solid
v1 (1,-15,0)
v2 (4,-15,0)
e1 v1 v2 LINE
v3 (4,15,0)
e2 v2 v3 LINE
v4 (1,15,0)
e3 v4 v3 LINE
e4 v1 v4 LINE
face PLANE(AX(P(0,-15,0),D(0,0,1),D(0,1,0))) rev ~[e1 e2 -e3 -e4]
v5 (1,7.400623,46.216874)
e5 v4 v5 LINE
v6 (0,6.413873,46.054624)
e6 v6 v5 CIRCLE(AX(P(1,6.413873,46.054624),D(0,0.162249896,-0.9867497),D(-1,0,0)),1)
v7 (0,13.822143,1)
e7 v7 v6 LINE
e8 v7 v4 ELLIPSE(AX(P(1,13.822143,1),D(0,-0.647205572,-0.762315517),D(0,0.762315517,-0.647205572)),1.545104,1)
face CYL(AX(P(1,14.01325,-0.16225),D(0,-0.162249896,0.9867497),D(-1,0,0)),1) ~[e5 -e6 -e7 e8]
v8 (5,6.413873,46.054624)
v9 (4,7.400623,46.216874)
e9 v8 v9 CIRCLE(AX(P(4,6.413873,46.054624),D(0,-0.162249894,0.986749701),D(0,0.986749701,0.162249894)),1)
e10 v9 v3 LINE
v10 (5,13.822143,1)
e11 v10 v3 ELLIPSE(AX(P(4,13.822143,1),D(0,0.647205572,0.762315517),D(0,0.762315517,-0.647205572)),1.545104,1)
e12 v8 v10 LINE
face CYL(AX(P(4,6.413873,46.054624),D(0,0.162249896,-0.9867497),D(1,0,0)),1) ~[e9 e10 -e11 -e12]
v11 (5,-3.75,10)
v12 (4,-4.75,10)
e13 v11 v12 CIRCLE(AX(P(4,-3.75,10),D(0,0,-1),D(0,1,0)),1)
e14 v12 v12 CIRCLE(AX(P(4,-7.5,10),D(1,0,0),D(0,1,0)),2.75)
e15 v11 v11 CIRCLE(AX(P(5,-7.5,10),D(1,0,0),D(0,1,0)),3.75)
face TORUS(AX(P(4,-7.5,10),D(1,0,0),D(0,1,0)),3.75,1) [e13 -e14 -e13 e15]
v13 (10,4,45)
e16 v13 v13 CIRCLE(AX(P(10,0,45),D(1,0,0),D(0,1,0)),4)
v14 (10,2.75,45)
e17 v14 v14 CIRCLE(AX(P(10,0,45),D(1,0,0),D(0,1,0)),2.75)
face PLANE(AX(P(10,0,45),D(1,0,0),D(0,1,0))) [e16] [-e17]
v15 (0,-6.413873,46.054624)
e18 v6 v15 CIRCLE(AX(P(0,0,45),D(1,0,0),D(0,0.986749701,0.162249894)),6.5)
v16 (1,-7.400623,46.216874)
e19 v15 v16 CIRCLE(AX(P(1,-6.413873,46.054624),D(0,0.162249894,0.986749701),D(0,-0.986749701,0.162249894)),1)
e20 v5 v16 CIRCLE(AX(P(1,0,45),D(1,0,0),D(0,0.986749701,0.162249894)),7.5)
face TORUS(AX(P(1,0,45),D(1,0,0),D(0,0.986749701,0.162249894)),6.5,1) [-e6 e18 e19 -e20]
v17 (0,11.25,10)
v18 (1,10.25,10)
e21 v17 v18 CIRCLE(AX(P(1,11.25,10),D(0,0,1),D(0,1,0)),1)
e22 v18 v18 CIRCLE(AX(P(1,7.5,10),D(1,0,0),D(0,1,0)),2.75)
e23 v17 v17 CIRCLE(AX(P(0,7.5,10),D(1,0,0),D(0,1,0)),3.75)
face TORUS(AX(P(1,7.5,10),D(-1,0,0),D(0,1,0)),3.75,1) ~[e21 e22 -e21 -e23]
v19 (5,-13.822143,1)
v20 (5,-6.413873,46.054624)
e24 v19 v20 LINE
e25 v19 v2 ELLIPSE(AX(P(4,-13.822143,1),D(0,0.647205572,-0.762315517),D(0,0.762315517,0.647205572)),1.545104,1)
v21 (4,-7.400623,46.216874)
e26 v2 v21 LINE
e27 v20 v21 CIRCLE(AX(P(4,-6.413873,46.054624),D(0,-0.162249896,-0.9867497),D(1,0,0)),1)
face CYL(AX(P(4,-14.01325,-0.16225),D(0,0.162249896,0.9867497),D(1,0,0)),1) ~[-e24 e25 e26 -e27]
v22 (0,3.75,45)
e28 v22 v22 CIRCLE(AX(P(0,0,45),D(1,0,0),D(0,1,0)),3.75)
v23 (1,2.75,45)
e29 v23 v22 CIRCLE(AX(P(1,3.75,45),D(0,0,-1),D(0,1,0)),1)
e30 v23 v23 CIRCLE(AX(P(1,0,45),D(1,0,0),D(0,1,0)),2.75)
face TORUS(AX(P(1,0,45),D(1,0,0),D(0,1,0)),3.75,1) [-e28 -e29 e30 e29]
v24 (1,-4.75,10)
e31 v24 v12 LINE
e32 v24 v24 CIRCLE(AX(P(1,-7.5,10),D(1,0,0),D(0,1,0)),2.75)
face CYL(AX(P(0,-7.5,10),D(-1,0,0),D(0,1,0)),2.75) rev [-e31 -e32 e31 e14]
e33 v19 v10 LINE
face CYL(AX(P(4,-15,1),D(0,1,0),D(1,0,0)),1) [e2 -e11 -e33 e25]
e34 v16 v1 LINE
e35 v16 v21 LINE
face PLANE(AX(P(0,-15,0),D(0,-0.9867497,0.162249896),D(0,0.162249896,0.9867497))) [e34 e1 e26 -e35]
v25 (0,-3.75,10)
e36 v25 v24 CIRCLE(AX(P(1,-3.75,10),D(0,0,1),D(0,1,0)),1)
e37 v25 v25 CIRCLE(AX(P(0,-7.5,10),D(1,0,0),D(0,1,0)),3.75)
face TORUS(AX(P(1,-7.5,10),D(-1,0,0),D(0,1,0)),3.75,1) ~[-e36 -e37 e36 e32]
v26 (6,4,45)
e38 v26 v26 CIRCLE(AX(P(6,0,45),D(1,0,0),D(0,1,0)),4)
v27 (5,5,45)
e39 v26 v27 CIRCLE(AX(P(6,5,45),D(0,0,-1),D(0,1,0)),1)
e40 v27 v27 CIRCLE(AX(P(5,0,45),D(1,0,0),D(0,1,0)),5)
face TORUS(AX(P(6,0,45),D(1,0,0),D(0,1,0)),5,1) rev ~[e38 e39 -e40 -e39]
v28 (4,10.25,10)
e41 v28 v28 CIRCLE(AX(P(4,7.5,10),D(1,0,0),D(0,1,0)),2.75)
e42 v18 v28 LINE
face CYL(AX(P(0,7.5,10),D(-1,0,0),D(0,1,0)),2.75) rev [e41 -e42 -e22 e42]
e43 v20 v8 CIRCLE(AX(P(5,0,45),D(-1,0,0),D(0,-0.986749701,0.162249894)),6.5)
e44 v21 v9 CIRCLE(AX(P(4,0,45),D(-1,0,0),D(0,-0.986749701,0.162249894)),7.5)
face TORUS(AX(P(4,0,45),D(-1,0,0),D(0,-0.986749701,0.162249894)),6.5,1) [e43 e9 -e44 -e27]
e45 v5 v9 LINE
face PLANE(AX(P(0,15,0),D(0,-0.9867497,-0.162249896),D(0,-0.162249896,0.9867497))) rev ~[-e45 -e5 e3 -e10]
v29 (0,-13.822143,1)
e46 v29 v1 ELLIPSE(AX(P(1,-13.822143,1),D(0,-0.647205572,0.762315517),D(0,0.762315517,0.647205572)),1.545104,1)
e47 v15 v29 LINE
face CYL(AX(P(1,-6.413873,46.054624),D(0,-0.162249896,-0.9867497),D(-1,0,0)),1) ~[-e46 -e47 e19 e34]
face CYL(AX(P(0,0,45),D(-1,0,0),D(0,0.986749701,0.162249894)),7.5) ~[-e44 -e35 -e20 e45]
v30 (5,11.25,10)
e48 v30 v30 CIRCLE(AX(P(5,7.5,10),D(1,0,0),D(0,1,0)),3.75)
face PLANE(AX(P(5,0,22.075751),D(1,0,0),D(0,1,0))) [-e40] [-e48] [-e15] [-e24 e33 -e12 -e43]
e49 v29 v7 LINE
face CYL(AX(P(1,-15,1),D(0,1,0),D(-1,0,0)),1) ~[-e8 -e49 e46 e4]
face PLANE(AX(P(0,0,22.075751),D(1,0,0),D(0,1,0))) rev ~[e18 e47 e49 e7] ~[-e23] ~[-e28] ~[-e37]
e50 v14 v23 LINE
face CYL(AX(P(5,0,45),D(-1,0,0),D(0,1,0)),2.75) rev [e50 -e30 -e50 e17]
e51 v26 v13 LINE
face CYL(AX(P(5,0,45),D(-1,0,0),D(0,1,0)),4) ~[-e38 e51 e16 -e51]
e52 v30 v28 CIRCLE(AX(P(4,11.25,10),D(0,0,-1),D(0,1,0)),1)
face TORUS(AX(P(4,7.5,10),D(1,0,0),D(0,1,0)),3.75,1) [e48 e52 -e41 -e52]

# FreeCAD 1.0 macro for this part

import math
import FreeCAD as App
import Part
import Sketcher

V = App.Vector
Q = App.Units.Quantity


def edges_at(feature, points):
    """Names of the edges that pass closest to the given points."""
    edges = feature.Shape.Edges
    near = lambda p: min(range(len(edges)), key=lambda i: edges[i].distToShape(Part.Vertex(*p))[0])
    return sorted({f"Edge{near(p) + 1}" for p in points})

doc = App.newDocument("Part")
params = doc.addObject("Spreadsheet::Sheet", "Params")
for row, (alias, value) in enumerate([
    ("sketch1_diameter", "5.5 mm"),
    ("sketch1_radius", "7.5 mm"),
    ("sketch1_width", "30 mm"),
    ("pad1_length", "5 mm"),
    ("sketch2_diameter", "8 mm"),
    ("sketch2_diameter2", "5.5 mm"),
    ("pad2_length", "5 mm"),
    ("fillet_radius", "1 mm"),
    ("fillet2_radius", "1 mm"),
], start=1):
    params.set(f"A{row}", alias)
    params.set(f"B{row}", "=" + value)
    params.setAlias(f"B{row}", alias)

body = doc.addObject("PartDesign::Body", "Body")

# Sketch on YZ plane
sketch1 = body.newObject("Sketcher::SketchObject", "Sketch")
sketch1.AttachmentSupport = (doc.getObject("YZ_Plane"), [""])
sketch1.MapMode = "FlatFace"
sketch1.addGeometry(Part.LineSegment(V(-15, 0, 0), V(15, 0, 0)), False)
sketch1.addGeometry(Part.LineSegment(V(15, 0, 0), V(7.400623, 46.216874, 0)), False)
sketch1.addGeometry(Part.ArcOfCircle(Part.Circle(V(0, 45, 0), V(0, 0, 1), 7.5), math.radians(9.337512), math.radians(170.662488)), False)
sketch1.addGeometry(Part.LineSegment(V(-7.400623, 46.216874, 0), V(-15, 0, 0)), False)
sketch1.addGeometry(Part.Circle(V(-7.5, 10, 0), V(0, 0, 1), 2.75), False)
sketch1.addGeometry(Part.Circle(V(7.5, 10, 0), V(0, 0, 1), 2.75), False)
sketch1.addGeometry(Part.Circle(V(0, 45, 0), V(0, 0, 1), 2.75), False)
sketch1.addConstraint(Sketcher.Constraint("Coincident", 0, 2, 1, 1))
sketch1.addConstraint(Sketcher.Constraint("Tangent", 1, 2, 2, 1))
sketch1.addConstraint(Sketcher.Constraint("Tangent", 2, 2, 3, 1))
sketch1.addConstraint(Sketcher.Constraint("Coincident", 3, 2, 0, 1))
sketch1.addConstraint(Sketcher.Constraint("Horizontal", 0))
sketch1.addConstraint(Sketcher.Constraint("Coincident", 6, 3, 2, 3))
sketch1.addConstraint(Sketcher.Constraint("Equal", 4, 5))
sketch1.addConstraint(Sketcher.Constraint("Equal", 5, 6))
sketch1.addConstraint(Sketcher.Constraint("Symmetric", 0, 2, 3, 2, -1, 1))
sketch1.addConstraint(Sketcher.Constraint("Symmetric", 4, 3, 5, 3, -2))
sketch1.addConstraint(Sketcher.Constraint("PointOnObject", 2, 3, -2))
sketch1.addConstraint(Sketcher.Constraint("Diameter", 4, Q("5.5 mm")))
sketch1.addConstraint(Sketcher.Constraint("Radius", 2, Q("7.5 mm")))
sketch1.addConstraint(Sketcher.Constraint("DistanceX", 0, 1, 0, 2, Q("30 mm")))
sketch1.addConstraint(Sketcher.Constraint("DistanceY", -1, 1, 2, 3, Q("45 mm")))
sketch1.addConstraint(Sketcher.Constraint("DistanceY", -1, 1, 4, 3, Q("10 mm")))
sketch1.addConstraint(Sketcher.Constraint("DistanceX", 4, 3, 5, 3, Q("15 mm")))
sketch1.setExpression("Constraints[11]", "Params.sketch1_diameter")
sketch1.setExpression("Constraints[12]", "Params.sketch1_radius")
sketch1.setExpression("Constraints[13]", "Params.sketch1_width")
pad1 = body.newObject("PartDesign::Pad", "Pad")
pad1.Profile = sketch1
pad1.setExpression("Length", "Params.pad1_length")

# Sketch on YZ plane
sketch2 = body.newObject("Sketcher::SketchObject", "Sketch001")
sketch2.AttachmentSupport = (doc.getObject("YZ_Plane"), [""])
sketch2.MapMode = "FlatFace"
sketch2.AttachmentOffset = App.Placement(V(0, 0, 5), App.Rotation())
sketch2.addGeometry(Part.Circle(V(0, 45, 0), V(0, 0, 1), 4), False)
sketch2.addGeometry(Part.Circle(V(0, 45, 0), V(0, 0, 1), 2.75), False)
sketch2.addConstraint(Sketcher.Constraint("Coincident", 1, 3, 0, 3))
sketch2.addConstraint(Sketcher.Constraint("PointOnObject", 0, 3, -2))
sketch2.addConstraint(Sketcher.Constraint("Diameter", 0, Q("8 mm")))
sketch2.addConstraint(Sketcher.Constraint("Diameter", 1, Q("5.5 mm")))
sketch2.addConstraint(Sketcher.Constraint("DistanceY", -1, 1, 0, 3, Q("45 mm")))
sketch2.setExpression("Constraints[2]", "Params.sketch2_diameter")
sketch2.setExpression("Constraints[3]", "Params.sketch2_diameter2")
pad2 = body.newObject("PartDesign::Pad", "Pad001")
pad2.Profile = sketch2
pad2.setExpression("Length", "Params.pad2_length")
doc.recompute()

fillet = body.newObject("PartDesign::Fillet", "Fillet")
fillet.Base = (pad2, edges_at(pad2, [
    (0, 0, 0),
    (0, 11.2, 23.108),
    (0, 0, 52.5),
    (0, -11.2, 23.108),
    (0, -2.75, 45),
    (0, -10.25, 10),
    (0, 4.75, 10),
]))
fillet.setExpression("Radius", "Params.fillet_radius")
doc.recompute()

fillet2 = body.newObject("PartDesign::Fillet", "Fillet001")
fillet2.Base = (fillet, edges_at(fillet, [
    (5, 0, 0),
    (5, -11.2, 23.108),
    (5, 11.2, 23.108),
    (5, 0, 52.5),
    (5, 4.75, 10),
    (5, -10.25, 10),
    (5, -4, 45),
]))
fillet2.setExpression("Radius", "Params.fillet2_radius")

doc.recompute()
